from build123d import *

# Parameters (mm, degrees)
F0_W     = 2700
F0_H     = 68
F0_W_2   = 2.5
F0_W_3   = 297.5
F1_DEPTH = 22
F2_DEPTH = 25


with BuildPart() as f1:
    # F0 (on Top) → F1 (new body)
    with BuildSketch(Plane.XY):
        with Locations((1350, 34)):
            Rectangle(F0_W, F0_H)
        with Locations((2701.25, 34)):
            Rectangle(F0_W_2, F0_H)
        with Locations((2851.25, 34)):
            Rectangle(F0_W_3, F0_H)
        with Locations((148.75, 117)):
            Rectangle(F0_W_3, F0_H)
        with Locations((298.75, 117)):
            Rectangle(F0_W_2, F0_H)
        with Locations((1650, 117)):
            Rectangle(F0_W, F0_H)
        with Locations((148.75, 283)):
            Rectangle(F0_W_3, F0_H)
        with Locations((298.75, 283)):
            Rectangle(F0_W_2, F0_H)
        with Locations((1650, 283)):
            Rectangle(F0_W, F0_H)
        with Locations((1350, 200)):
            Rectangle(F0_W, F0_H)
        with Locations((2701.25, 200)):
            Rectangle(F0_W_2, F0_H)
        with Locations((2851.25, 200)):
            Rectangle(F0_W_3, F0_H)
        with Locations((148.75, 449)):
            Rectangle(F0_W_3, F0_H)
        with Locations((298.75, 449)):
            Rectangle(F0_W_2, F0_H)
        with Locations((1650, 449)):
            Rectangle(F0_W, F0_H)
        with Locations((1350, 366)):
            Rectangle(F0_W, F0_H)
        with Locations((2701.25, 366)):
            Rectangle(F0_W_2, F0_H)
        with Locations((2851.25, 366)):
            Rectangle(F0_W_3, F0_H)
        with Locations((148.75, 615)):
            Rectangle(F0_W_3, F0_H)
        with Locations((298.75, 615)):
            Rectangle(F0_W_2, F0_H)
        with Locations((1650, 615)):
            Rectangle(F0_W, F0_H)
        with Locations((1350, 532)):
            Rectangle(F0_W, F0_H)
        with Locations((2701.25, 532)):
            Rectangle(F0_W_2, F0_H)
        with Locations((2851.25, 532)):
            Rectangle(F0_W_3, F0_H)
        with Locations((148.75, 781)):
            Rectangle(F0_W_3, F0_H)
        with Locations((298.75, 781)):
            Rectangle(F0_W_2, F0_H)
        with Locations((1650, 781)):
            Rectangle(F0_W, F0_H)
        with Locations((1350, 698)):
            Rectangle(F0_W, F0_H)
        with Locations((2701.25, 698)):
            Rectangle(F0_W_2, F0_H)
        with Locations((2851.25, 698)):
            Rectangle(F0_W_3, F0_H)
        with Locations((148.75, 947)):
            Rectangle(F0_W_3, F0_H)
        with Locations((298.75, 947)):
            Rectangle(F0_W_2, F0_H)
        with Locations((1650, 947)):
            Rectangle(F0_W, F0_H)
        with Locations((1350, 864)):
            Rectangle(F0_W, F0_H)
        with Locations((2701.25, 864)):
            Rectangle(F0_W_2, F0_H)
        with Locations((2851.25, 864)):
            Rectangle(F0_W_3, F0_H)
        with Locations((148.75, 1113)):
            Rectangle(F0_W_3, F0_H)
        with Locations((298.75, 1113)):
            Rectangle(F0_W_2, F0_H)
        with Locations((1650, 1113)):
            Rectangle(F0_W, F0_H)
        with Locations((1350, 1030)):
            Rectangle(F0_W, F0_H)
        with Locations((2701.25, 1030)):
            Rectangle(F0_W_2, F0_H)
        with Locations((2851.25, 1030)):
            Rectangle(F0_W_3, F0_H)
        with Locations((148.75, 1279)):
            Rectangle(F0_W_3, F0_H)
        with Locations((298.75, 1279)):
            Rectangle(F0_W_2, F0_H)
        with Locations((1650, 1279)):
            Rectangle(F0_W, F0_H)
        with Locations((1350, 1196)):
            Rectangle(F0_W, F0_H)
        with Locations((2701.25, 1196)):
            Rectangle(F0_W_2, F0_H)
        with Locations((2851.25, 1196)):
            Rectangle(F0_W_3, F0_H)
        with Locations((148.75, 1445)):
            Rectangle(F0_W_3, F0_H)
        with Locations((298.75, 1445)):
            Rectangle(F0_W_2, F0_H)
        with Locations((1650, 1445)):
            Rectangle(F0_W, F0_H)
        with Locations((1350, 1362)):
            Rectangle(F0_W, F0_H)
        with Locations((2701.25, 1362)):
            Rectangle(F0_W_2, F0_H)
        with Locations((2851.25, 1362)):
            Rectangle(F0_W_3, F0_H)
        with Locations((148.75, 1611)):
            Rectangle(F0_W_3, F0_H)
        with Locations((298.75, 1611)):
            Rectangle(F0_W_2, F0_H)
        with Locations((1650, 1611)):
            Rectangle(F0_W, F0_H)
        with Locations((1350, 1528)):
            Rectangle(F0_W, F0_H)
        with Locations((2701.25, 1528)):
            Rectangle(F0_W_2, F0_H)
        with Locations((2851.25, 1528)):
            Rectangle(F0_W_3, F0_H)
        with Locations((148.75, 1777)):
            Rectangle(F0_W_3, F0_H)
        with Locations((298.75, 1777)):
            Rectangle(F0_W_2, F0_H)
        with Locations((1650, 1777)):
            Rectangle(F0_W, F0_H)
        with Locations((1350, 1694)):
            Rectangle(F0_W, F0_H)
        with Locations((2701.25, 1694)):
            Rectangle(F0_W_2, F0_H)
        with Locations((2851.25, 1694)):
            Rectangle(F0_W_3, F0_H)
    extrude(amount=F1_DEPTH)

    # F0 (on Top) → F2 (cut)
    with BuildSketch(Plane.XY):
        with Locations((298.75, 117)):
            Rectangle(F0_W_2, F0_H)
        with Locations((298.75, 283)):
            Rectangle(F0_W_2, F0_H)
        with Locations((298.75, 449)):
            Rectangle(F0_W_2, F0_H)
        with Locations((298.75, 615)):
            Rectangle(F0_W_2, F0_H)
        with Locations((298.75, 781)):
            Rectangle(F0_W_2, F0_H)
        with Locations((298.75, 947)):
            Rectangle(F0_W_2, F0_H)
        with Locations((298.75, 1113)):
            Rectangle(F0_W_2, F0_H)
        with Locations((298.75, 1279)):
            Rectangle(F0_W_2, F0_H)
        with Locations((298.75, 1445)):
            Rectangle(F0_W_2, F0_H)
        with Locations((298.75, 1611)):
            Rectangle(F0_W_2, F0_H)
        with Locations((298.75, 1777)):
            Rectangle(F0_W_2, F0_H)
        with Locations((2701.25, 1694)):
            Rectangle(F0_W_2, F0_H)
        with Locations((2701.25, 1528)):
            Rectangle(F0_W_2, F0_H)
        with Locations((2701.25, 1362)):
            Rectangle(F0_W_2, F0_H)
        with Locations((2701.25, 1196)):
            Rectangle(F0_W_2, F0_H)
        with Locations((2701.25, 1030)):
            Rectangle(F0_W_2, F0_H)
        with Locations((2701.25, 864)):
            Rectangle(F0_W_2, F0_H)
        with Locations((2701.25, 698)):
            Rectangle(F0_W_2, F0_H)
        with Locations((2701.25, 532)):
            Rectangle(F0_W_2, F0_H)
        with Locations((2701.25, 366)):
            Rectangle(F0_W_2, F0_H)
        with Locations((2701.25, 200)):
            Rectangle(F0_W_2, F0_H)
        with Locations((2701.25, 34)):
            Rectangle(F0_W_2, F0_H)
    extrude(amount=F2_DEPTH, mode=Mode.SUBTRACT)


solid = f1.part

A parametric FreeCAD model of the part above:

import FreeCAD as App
import Part
import Sketcher


def add_polygon(sketch, points):
    """Adds a closed chain of lines whose ends are joined by coincident constraints."""
    first, n = sketch.GeometryCount, len(points)
    for a, b in zip(points, points[1:] + points[:1]):
        sketch.addGeometry(Part.LineSegment(App.Vector(*a, 0), App.Vector(*b, 0)), False)
    for i in range(n):
        sketch.addConstraint(Sketcher.Constraint("Coincident", first + i, 2, first + (i + 1) % n, 1))

doc = App.newDocument("Part")
body = doc.addObject("PartDesign::Body", "Body")
body.AllowCompound = True

# Sketch on XY plane
sketch1 = doc.addObject("Sketcher::SketchObject", "Sketch")
body.addObject(sketch1)
sketch1.AttachmentSupport = (doc.XY_Plane, [""])
sketch1.MapMode = "FlatFace"
add_polygon(sketch1, [(0, 68), (0, 0), (3000, 0), (3000, 68)])  # lines 0-3
add_polygon(sketch1, [(0, 151), (0, 83), (3000, 83), (3000, 151)])  # lines 4-7
add_polygon(sketch1, [(0, 317), (0, 249), (3000, 249), (3000, 317)])  # lines 8-11
add_polygon(sketch1, [(0, 234), (0, 166), (3000, 166), (3000, 234)])  # lines 12-15
add_polygon(sketch1, [(0, 483), (0, 415), (3000, 415), (3000, 483)])  # lines 16-19
add_polygon(sketch1, [(0, 400), (0, 332), (3000, 332), (3000, 400)])  # lines 20-23
add_polygon(sketch1, [(0, 649), (0, 581), (3000, 581), (3000, 649)])  # lines 24-27
add_polygon(sketch1, [(0, 566), (0, 498), (3000, 498), (3000, 566)])  # lines 28-31
add_polygon(sketch1, [(0, 815), (0, 747), (3000, 747), (3000, 815)])  # lines 32-35
add_polygon(sketch1, [(0, 732), (0, 664), (3000, 664), (3000, 732)])  # lines 36-39
add_polygon(sketch1, [(0, 981), (0, 913), (3000, 913), (3000, 981)])  # lines 40-43
add_polygon(sketch1, [(0, 898), (0, 830), (3000, 830), (3000, 898)])  # lines 44-47
add_polygon(sketch1, [(0, 1147), (0, 1079), (3000, 1079), (3000, 1147)])  # lines 48-51
add_polygon(sketch1, [(0, 1064), (0, 996), (3000, 996), (3000, 1064)])  # lines 52-55
add_polygon(sketch1, [(0, 1313), (0, 1245), (3000, 1245), (3000, 1313)])  # lines 56-59
add_polygon(sketch1, [(0, 1230), (0, 1162), (3000, 1162), (3000, 1230)])  # lines 60-63
add_polygon(sketch1, [(0, 1479), (0, 1411), (3000, 1411), (3000, 1479)])  # lines 64-67
add_polygon(sketch1, [(0, 1396), (0, 1328), (3000, 1328), (3000, 1396)])  # lines 68-71
add_polygon(sketch1, [(0, 1645), (0, 1577), (3000, 1577), (3000, 1645)])  # lines 72-75
add_polygon(sketch1, [(0, 1562), (0, 1494), (3000, 1494), (3000, 1562)])  # lines 76-79
add_polygon(sketch1, [(0, 1811), (0, 1743), (3000, 1743), (3000, 1811)])  # lines 80-83
add_polygon(sketch1, [(0, 1728), (0, 1660), (3000, 1660), (3000, 1728)])  # lines 84-87
sketch1.addConstraint(Sketcher.Constraint("Vertical", 0))
sketch1.addConstraint(Sketcher.Constraint("Horizontal", 1))
sketch1.addConstraint(Sketcher.Constraint("Vertical", 2))
sketch1.addConstraint(Sketcher.Constraint("Horizontal", 3))
sketch1.addConstraint(Sketcher.Constraint("Vertical", 4))
sketch1.addConstraint(Sketcher.Constraint("Horizontal", 5))
sketch1.addConstraint(Sketcher.Constraint("Vertical", 6))
sketch1.addConstraint(Sketcher.Constraint("Horizontal", 7))
sketch1.addConstraint(Sketcher.Constraint("Vertical", 8))
sketch1.addConstraint(Sketcher.Constraint("Horizontal", 9))
sketch1.addConstraint(Sketcher.Constraint("Vertical", 10))
sketch1.addConstraint(Sketcher.Constraint("Horizontal", 11))
sketch1.addConstraint(Sketcher.Constraint("Vertical", 12))
sketch1.addConstraint(Sketcher.Constraint("Horizontal", 13))
sketch1.addConstraint(Sketcher.Constraint("Vertical", 14))
sketch1.addConstraint(Sketcher.Constraint("Horizontal", 15))
sketch1.addConstraint(Sketcher.Constraint("Vertical", 16))
sketch1.addConstraint(Sketcher.Constraint("Horizontal", 17))
sketch1.addConstraint(Sketcher.Constraint("Vertical", 18))
sketch1.addConstraint(Sketcher.Constraint("Horizontal", 19))
sketch1.addConstraint(Sketcher.Constraint("Vertical", 20))
sketch1.addConstraint(Sketcher.Constraint("Horizontal", 21))
sketch1.addConstraint(Sketcher.Constraint("Vertical", 22))
sketch1.addConstraint(Sketcher.Constraint("Horizontal", 23))
sketch1.addConstraint(Sketcher.Constraint("Vertical", 24))
sketch1.addConstraint(Sketcher.Constraint("Horizontal", 25))
sketch1.addConstraint(Sketcher.Constraint("Vertical", 26))
sketch1.addConstraint(Sketcher.Constraint("Horizontal", 27))
sketch1.addConstraint(Sketcher.Constraint("Vertical", 28))
sketch1.addConstraint(Sketcher.Constraint("Horizontal", 29))
sketch1.addConstraint(Sketcher.Constraint("Vertical", 30))
sketch1.addConstraint(Sketcher.Constraint("Horizontal", 31))
sketch1.addConstraint(Sketcher.Constraint("Vertical", 32))
sketch1.addConstraint(Sketcher.Constraint("Horizontal", 33))
sketch1.addConstraint(Sketcher.Constraint("Vertical", 34))
sketch1.addConstraint(Sketcher.Constraint("Horizontal", 35))
sketch1.addConstraint(Sketcher.Constraint("Vertical", 36))
sketch1.addConstraint(Sketcher.Constraint("Horizontal", 37))
sketch1.addConstraint(Sketcher.Constraint("Vertical", 38))
sketch1.addConstraint(Sketcher.Constraint("Horizontal", 39))
sketch1.addConstraint(Sketcher.Constraint("Vertical", 40))
sketch1.addConstraint(Sketcher.Constraint("Horizontal", 41))
sketch1.addConstraint(Sketcher.Constraint("Vertical", 42))
sketch1.addConstraint(Sketcher.Constraint("Horizontal", 43))
sketch1.addConstraint(Sketcher.Constraint("Vertical", 44))
sketch1.addConstraint(Sketcher.Constraint("Horizontal", 45))
sketch1.addConstraint(Sketcher.Constraint("Vertical", 46))
sketch1.addConstraint(Sketcher.Constraint("Horizontal", 47))
sketch1.addConstraint(Sketcher.Constraint("Vertical", 48))
sketch1.addConstraint(Sketcher.Constraint("Horizontal", 49))
sketch1.addConstraint(Sketcher.Constraint("Vertical", 50))
sketch1.addConstraint(Sketcher.Constraint("Horizontal", 51))
sketch1.addConstraint(Sketcher.Constraint("Vertical", 52))
sketch1.addConstraint(Sketcher.Constraint("Horizontal", 53))
sketch1.addConstraint(Sketcher.Constraint("Vertical", 54))
sketch1.addConstraint(Sketcher.Constraint("Horizontal", 55))
sketch1.addConstraint(Sketcher.Constraint("Vertical", 56))
sketch1.addConstraint(Sketcher.Constraint("Horizontal", 57))
sketch1.addConstraint(Sketcher.Constraint("Vertical", 58))
sketch1.addConstraint(Sketcher.Constraint("Horizontal", 59))
sketch1.addConstraint(Sketcher.Constraint("Vertical", 60))
sketch1.addConstraint(Sketcher.Constraint("Horizontal", 61))
sketch1.addConstraint(Sketcher.Constraint("Vertical", 62))
sketch1.addConstraint(Sketcher.Constraint("Horizontal", 63))
sketch1.addConstraint(Sketcher.Constraint("Vertical", 64))
sketch1.addConstraint(Sketcher.Constraint("Horizontal", 65))
sketch1.addConstraint(Sketcher.Constraint("Vertical", 66))
sketch1.addConstraint(Sketcher.Constraint("Horizontal", 67))
sketch1.addConstraint(Sketcher.Constraint("Vertical", 68))
sketch1.addConstraint(Sketcher.Constraint("Horizontal", 69))
sketch1.addConstraint(Sketcher.Constraint("Vertical", 70))
sketch1.addConstraint(Sketcher.Constraint("Horizontal", 71))
sketch1.addConstraint(Sketcher.Constraint("Vertical", 72))
sketch1.addConstraint(Sketcher.Constraint("Horizontal", 73))
sketch1.addConstraint(Sketcher.Constraint("Vertical", 74))
sketch1.addConstraint(Sketcher.Constraint("Horizontal", 75))
sketch1.addConstraint(Sketcher.Constraint("Vertical", 76))
sketch1.addConstraint(Sketcher.Constraint("Horizontal", 77))
sketch1.addConstraint(Sketcher.Constraint("Vertical", 78))
sketch1.addConstraint(Sketcher.Constraint("Horizontal", 79))
sketch1.addConstraint(Sketcher.Constraint("Vertical", 80))
sketch1.addConstraint(Sketcher.Constraint("Horizontal", 81))
sketch1.addConstraint(Sketcher.Constraint("Vertical", 82))
sketch1.addConstraint(Sketcher.Constraint("Horizontal", 83))
sketch1.addConstraint(Sketcher.Constraint("Vertical", 84))
sketch1.addConstraint(Sketcher.Constraint("Horizontal", 85))
sketch1.addConstraint(Sketcher.Constraint("Vertical", 86))
sketch1.addConstraint(Sketcher.Constraint("Horizontal", 87))
sketch1.addConstraint(Sketcher.Constraint("Coincident", 0, 2, -1, 1))
sketch1.addConstraint(Sketcher.Constraint("PointOnObject", 4, 2, -2))
sketch1.addConstraint(Sketcher.Constraint("PointOnObject", 8, 2, -2))
sketch1.addConstraint(Sketcher.Constraint("PointOnObject", 12, 2, -2))
sketch1.addConstraint(Sketcher.Constraint("PointOnObject", 16, 2, -2))
sketch1.addConstraint(Sketcher.Constraint("PointOnObject", 20, 2, -2))
sketch1.addConstraint(Sketcher.Constraint("PointOnObject", 24, 2, -2))
sketch1.addConstraint(Sketcher.Constraint("PointOnObject", 28, 2, -2))
sketch1.addConstraint(Sketcher.Constraint("PointOnObject", 32, 2, -2))
sketch1.addConstraint(Sketcher.Constraint("PointOnObject", 36, 2, -2))
sketch1.addConstraint(Sketcher.Constraint("PointOnObject", 40, 2, -2))
sketch1.addConstraint(Sketcher.Constraint("PointOnObject", 44, 2, -2))
sketch1.addConstraint(Sketcher.Constraint("PointOnObject", 48, 2, -2))
sketch1.addConstraint(Sketcher.Constraint("PointOnObject", 52, 2, -2))
sketch1.addConstraint(Sketcher.Constraint("PointOnObject", 56, 2, -2))
sketch1.addConstraint(Sketcher.Constraint("PointOnObject", 60, 2, -2))
sketch1.addConstraint(Sketcher.Constraint("PointOnObject", 64, 2, -2))
sketch1.addConstraint(Sketcher.Constraint("PointOnObject", 68, 2, -2))
sketch1.addConstraint(Sketcher.Constraint("PointOnObject", 72, 2, -2))
sketch1.addConstraint(Sketcher.Constraint("PointOnObject", 76, 2, -2))
sketch1.addConstraint(Sketcher.Constraint("PointOnObject", 80, 2, -2))
sketch1.addConstraint(Sketcher.Constraint("PointOnObject", 84, 2, -2))
sketch1.addConstraint(Sketcher.Constraint("Vertical", 2, 2, 5, 2))
sketch1.addConstraint(Sketcher.Constraint("Vertical", 6, 2, 9, 2))
sketch1.addConstraint(Sketcher.Constraint("Vertical", 10, 2, 13, 2))
sketch1.addConstraint(Sketcher.Constraint("Vertical", 14, 2, 17, 2))
sketch1.addConstraint(Sketcher.Constraint("Vertical", 18, 2, 21, 2))
sketch1.addConstraint(Sketcher.Constraint("Vertical", 22, 2, 25, 2))
sketch1.addConstraint(Sketcher.Constraint("Vertical", 26, 2, 29, 2))
sketch1.addConstraint(Sketcher.Constraint("Vertical", 30, 2, 33, 2))
sketch1.addConstraint(Sketcher.Constraint("Vertical", 34, 2, 37, 2))
sketch1.addConstraint(Sketcher.Constraint("Vertical", 38, 2, 41, 2))
sketch1.addConstraint(Sketcher.Constraint("Vertical", 42, 2, 45, 2))
sketch1.addConstraint(Sketcher.Constraint("Vertical", 46, 2, 49, 2))
sketch1.addConstraint(Sketcher.Constraint("Vertical", 50, 2, 53, 2))
sketch1.addConstraint(Sketcher.Constraint("Vertical", 54, 2, 57, 2))
sketch1.addConstraint(Sketcher.Constraint("Vertical", 58, 2, 61, 2))
sketch1.addConstraint(Sketcher.Constraint("Vertical", 62, 2, 65, 2))
sketch1.addConstraint(Sketcher.Constraint("Vertical", 66, 2, 69, 2))
sketch1.addConstraint(Sketcher.Constraint("Vertical", 70, 2, 73, 2))
sketch1.addConstraint(Sketcher.Constraint("Vertical", 74, 2, 77, 2))
sketch1.addConstraint(Sketcher.Constraint("Vertical", 78, 2, 81, 2))
sketch1.addConstraint(Sketcher.Constraint("Vertical", 82, 2, 85, 2))
sketch1.addConstraint(Sketcher.Constraint("Equal", 2, 4))
sketch1.addConstraint(Sketcher.Constraint("Equal", 6, 8))
sketch1.addConstraint(Sketcher.Constraint("Equal", 10, 12))
sketch1.addConstraint(Sketcher.Constraint("Equal", 14, 16))
sketch1.addConstraint(Sketcher.Constraint("Equal", 18, 20))
sketch1.addConstraint(Sketcher.Constraint("Equal", 22, 24))
sketch1.addConstraint(Sketcher.Constraint("Equal", 26, 28))
sketch1.addConstraint(Sketcher.Constraint("Equal", 30, 32))
sketch1.addConstraint(Sketcher.Constraint("Equal", 34, 36))
sketch1.addConstraint(Sketcher.Constraint("Equal", 38, 40))
sketch1.addConstraint(Sketcher.Constraint("Equal", 42, 44))
sketch1.addConstraint(Sketcher.Constraint("Equal", 46, 48))
sketch1.addConstraint(Sketcher.Constraint("Equal", 50, 52))
sketch1.addConstraint(Sketcher.Constraint("Equal", 54, 56))
sketch1.addConstraint(Sketcher.Constraint("Equal", 58, 60))
sketch1.addConstraint(Sketcher.Constraint("Equal", 62, 64))
sketch1.addConstraint(Sketcher.Constraint("Equal", 66, 68))
sketch1.addConstraint(Sketcher.Constraint("Equal", 70, 72))
sketch1.addConstraint(Sketcher.Constraint("Equal", 74, 76))
sketch1.addConstraint(Sketcher.Constraint("Equal", 78, 80))
sketch1.addConstraint(Sketcher.Constraint("Equal", 82, 84))
sketch1.addConstraint(Sketcher.Constraint("DistanceX", 1, 1, 1, 2, 3000.0))
sketch1.addConstraint(Sketcher.Constraint("DistanceY", 0, 2, 0, 1, 68.0))
sketch1.addConstraint(Sketcher.Constraint("DistanceY", -1, 1, 4, 2, 83.0))
sketch1.addConstraint(Sketcher.Constraint("DistanceY", -1, 1, 8, 2, 249.0))
sketch1.addConstraint(Sketcher.Constraint("DistanceY", -1, 1, 12, 2, 166.0))
sketch1.addConstraint(Sketcher.Constraint("DistanceY", -1, 1, 16, 2, 415.0))
sketch1.addConstraint(Sketcher.Constraint("DistanceY", -1, 1, 20, 2, 332.0))
sketch1.addConstraint(Sketcher.Constraint("DistanceY", -1, 1, 24, 2, 581.0))
sketch1.addConstraint(Sketcher.Constraint("DistanceY", -1, 1, 28, 2, 498.0))
sketch1.addConstraint(Sketcher.Constraint("DistanceY", -1, 1, 32, 2, 747.0))
sketch1.addConstraint(Sketcher.Constraint("DistanceY", -1, 1, 36, 2, 664.0))
sketch1.addConstraint(Sketcher.Constraint("DistanceY", -1, 1, 40, 2, 913.0))
sketch1.addConstraint(Sketcher.Constraint("DistanceY", -1, 1, 44, 2, 830.0))
sketch1.addConstraint(Sketcher.Constraint("DistanceY", -1, 1, 48, 2, 1079.0))
sketch1.addConstraint(Sketcher.Constraint("DistanceY", -1, 1, 52, 2, 996.0))
sketch1.addConstraint(Sketcher.Constraint("DistanceY", -1, 1, 56, 2, 1245.0))
sketch1.addConstraint(Sketcher.Constraint("DistanceY", -1, 1, 60, 2, 1162.0))
sketch1.addConstraint(Sketcher.Constraint("DistanceY", -1, 1, 64, 2, 1411.0))
sketch1.addConstraint(Sketcher.Constraint("DistanceY", -1, 1, 68, 2, 1328.0))
sketch1.addConstraint(Sketcher.Constraint("DistanceY", -1, 1, 72, 2, 1577.0))
sketch1.addConstraint(Sketcher.Constraint("DistanceY", -1, 1, 76, 2, 1494.0))
sketch1.addConstraint(Sketcher.Constraint("DistanceY", -1, 1, 80, 2, 1743.0))
sketch1.addConstraint(Sketcher.Constraint("DistanceY", -1, 1, 84, 2, 1660.0))
pad1 = doc.addObject("PartDesign::Pad", "Pad")
body.addObject(pad1)
pad1.Profile = sketch1
pad1.Length = 22

# Sketch on XY plane
sketch2 = doc.addObject("Sketcher::SketchObject", "Sketch001")
body.addObject(sketch2)
sketch2.AttachmentSupport = (doc.XY_Plane, [""])
sketch2.MapMode = "FlatFace"
add_polygon(sketch2, [(297.5, 151), (297.5, 83), (300, 83), (300, 151)])  # lines 0-3
add_polygon(sketch2, [(297.5, 317), (297.5, 249), (300, 249), (300, 317)])  # lines 4-7
add_polygon(sketch2, [(297.5, 483), (297.5, 415), (300, 415), (300, 483)])  # lines 8-11
add_polygon(sketch2, [(297.5, 649), (297.5, 581), (300, 581), (300, 649)])  # lines 12-15
add_polygon(sketch2, [(297.5, 815), (297.5, 747), (300, 747), (300, 815)])  # lines 16-19
add_polygon(sketch2, [(297.5, 981), (297.5, 913), (300, 913), (300, 981)])  # lines 20-23
add_polygon(sketch2, [(297.5, 1147), (297.5, 1079), (300, 1079), (300, 1147)])  # lines 24-27
add_polygon(sketch2, [(297.5, 1313), (297.5, 1245), (300, 1245), (300, 1313)])  # lines 28-31
add_polygon(sketch2, [(297.5, 1479), (297.5, 1411), (300, 1411), (300, 1479)])  # lines 32-35
add_polygon(sketch2, [(297.5, 1645), (297.5, 1577), (300, 1577), (300, 1645)])  # lines 36-39
add_polygon(sketch2, [(297.5, 1811), (297.5, 1743), (300, 1743), (300, 1811)])  # lines 40-43
add_polygon(sketch2, [(2700, 1728), (2700, 1660), (2702.5, 1660), (2702.5, 1728)])  # lines 44-47
add_polygon(sketch2, [(2700, 1562), (2700, 1494), (2702.5, 1494), (2702.5, 1562)])  # lines 48-51
add_polygon(sketch2, [(2700, 1396), (2700, 1328), (2702.5, 1328), (2702.5, 1396)])  # lines 52-55
add_polygon(sketch2, [(2700, 1230), (2700, 1162), (2702.5, 1162), (2702.5, 1230)])  # lines 56-59
add_polygon(sketch2, [(2700, 1064), (2700, 996), (2702.5, 996), (2702.5, 1064)])  # lines 60-63
add_polygon(sketch2, [(2700, 898), (2700, 830), (2702.5, 830), (2702.5, 898)])  # lines 64-67
add_polygon(sketch2, [(2700, 732), (2700, 664), (2702.5, 664), (2702.5, 732)])  # lines 68-71
add_polygon(sketch2, [(2700, 566), (2700, 498), (2702.5, 498), (2702.5, 566)])  # lines 72-75
add_polygon(sketch2, [(2700, 400), (2700, 332), (2702.5, 332), (2702.5, 400)])  # lines 76-79
add_polygon(sketch2, [(2700, 234), (2700, 166), (2702.5, 166), (2702.5, 234)])  # lines 80-83
add_polygon(sketch2, [(2700, 68), (2700, 0), (2702.5, 0), (2702.5, 68)])  # lines 84-87
sketch2.addConstraint(Sketcher.Constraint("Vertical", 0))
sketch2.addConstraint(Sketcher.Constraint("Horizontal", 1))
sketch2.addConstraint(Sketcher.Constraint("Vertical", 2))
sketch2.addConstraint(Sketcher.Constraint("Horizontal", 3))
sketch2.addConstraint(Sketcher.Constraint("Vertical", 4))
sketch2.addConstraint(Sketcher.Constraint("Horizontal", 5))
sketch2.addConstraint(Sketcher.Constraint("Vertical", 6))
sketch2.addConstraint(Sketcher.Constraint("Horizontal", 7))
sketch2.addConstraint(Sketcher.Constraint("Vertical", 8))
sketch2.addConstraint(Sketcher.Constraint("Horizontal", 9))
sketch2.addConstraint(Sketcher.Constraint("Vertical", 10))
sketch2.addConstraint(Sketcher.Constraint("Horizontal", 11))
sketch2.addConstraint(Sketcher.Constraint("Vertical", 12))
sketch2.addConstraint(Sketcher.Constraint("Horizontal", 13))
sketch2.addConstraint(Sketcher.Constraint("Vertical", 14))
sketch2.addConstraint(Sketcher.Constraint("Horizontal", 15))
sketch2.addConstraint(Sketcher.Constraint("Vertical", 16))
sketch2.addConstraint(Sketcher.Constraint("Horizontal", 17))
sketch2.addConstraint(Sketcher.Constraint("Vertical", 18))
sketch2.addConstraint(Sketcher.Constraint("Horizontal", 19))
sketch2.addConstraint(Sketcher.Constraint("Vertical", 20))
sketch2.addConstraint(Sketcher.Constraint("Horizontal", 21))
sketch2.addConstraint(Sketcher.Constraint("Vertical", 22))
sketch2.addConstraint(Sketcher.Constraint("Horizontal", 23))
sketch2.addConstraint(Sketcher.Constraint("Vertical", 24))
sketch2.addConstraint(Sketcher.Constraint("Horizontal", 25))
sketch2.addConstraint(Sketcher.Constraint("Vertical", 26))
sketch2.addConstraint(Sketcher.Constraint("Horizontal", 27))
sketch2.addConstraint(Sketcher.Constraint("Vertical", 28))
sketch2.addConstraint(Sketcher.Constraint("Horizontal", 29))
sketch2.addConstraint(Sketcher.Constraint("Vertical", 30))
sketch2.addConstraint(Sketcher.Constraint("Horizontal", 31))
sketch2.addConstraint(Sketcher.Constraint("Vertical", 32))
sketch2.addConstraint(Sketcher.Constraint("Horizontal", 33))
sketch2.addConstraint(Sketcher.Constraint("Vertical", 34))
sketch2.addConstraint(Sketcher.Constraint("Horizontal", 35))
sketch2.addConstraint(Sketcher.Constraint("Vertical", 36))
sketch2.addConstraint(Sketcher.Constraint("Horizontal", 37))
sketch2.addConstraint(Sketcher.Constraint("Vertical", 38))
sketch2.addConstraint(Sketcher.Constraint("Horizontal", 39))
sketch2.addConstraint(Sketcher.Constraint("Vertical", 40))
sketch2.addConstraint(Sketcher.Constraint("Horizontal", 41))
sketch2.addConstraint(Sketcher.Constraint("Vertical", 42))
sketch2.addConstraint(Sketcher.Constraint("Horizontal", 43))
sketch2.addConstraint(Sketcher.Constraint("Vertical", 44))
sketch2.addConstraint(Sketcher.Constraint("Horizontal", 45))
sketch2.addConstraint(Sketcher.Constraint("Vertical", 46))
sketch2.addConstraint(Sketcher.Constraint("Horizontal", 47))
sketch2.addConstraint(Sketcher.Constraint("Vertical", 48))
sketch2.addConstraint(Sketcher.Constraint("Horizontal", 49))
sketch2.addConstraint(Sketcher.Constraint("Vertical", 50))
sketch2.addConstraint(Sketcher.Constraint("Horizontal", 51))
sketch2.addConstraint(Sketcher.Constraint("Vertical", 52))
sketch2.addConstraint(Sketcher.Constraint("Horizontal", 53))
sketch2.addConstraint(Sketcher.Constraint("Vertical", 54))
sketch2.addConstraint(Sketcher.Constraint("Horizontal", 55))
sketch2.addConstraint(Sketcher.Constraint("Vertical", 56))
sketch2.addConstraint(Sketcher.Constraint("Horizontal", 57))
sketch2.addConstraint(Sketcher.Constraint("Vertical", 58))
sketch2.addConstraint(Sketcher.Constraint("Horizontal", 59))
sketch2.addConstraint(Sketcher.Constraint("Vertical", 60))
sketch2.addConstraint(Sketcher.Constraint("Horizontal", 61))
sketch2.addConstraint(Sketcher.Constraint("Vertical", 62))
sketch2.addConstraint(Sketcher.Constraint("Horizontal", 63))
sketch2.addConstraint(Sketcher.Constraint("Vertical", 64))
sketch2.addConstraint(Sketcher.Constraint("Horizontal", 65))
sketch2.addConstraint(Sketcher.Constraint("Vertical", 66))
sketch2.addConstraint(Sketcher.Constraint("Horizontal", 67))
sketch2.addConstraint(Sketcher.Constraint("Vertical", 68))
sketch2.addConstraint(Sketcher.Constraint("Horizontal", 69))
sketch2.addConstraint(Sketcher.Constraint("Vertical", 70))
sketch2.addConstraint(Sketcher.Constraint("Horizontal", 71))
sketch2.addConstraint(Sketcher.Constraint("Vertical", 72))
sketch2.addConstraint(Sketcher.Constraint("Horizontal", 73))
sketch2.addConstraint(Sketcher.Constraint("Vertical", 74))
sketch2.addConstraint(Sketcher.Constraint("Horizontal", 75))
sketch2.addConstraint(Sketcher.Constraint("Vertical", 76))
sketch2.addConstraint(Sketcher.Constraint("Horizontal", 77))
sketch2.addConstraint(Sketcher.Constraint("Vertical", 78))
sketch2.addConstraint(Sketcher.Constraint("Horizontal", 79))
sketch2.addConstraint(Sketcher.Constraint("Vertical", 80))
sketch2.addConstraint(Sketcher.Constraint("Horizontal", 81))
sketch2.addConstraint(Sketcher.Constraint("Vertical", 82))
sketch2.addConstraint(Sketcher.Constraint("Horizontal", 83))
sketch2.addConstraint(Sketcher.Constraint("Vertical", 84))
sketch2.addConstraint(Sketcher.Constraint("Horizontal", 85))
sketch2.addConstraint(Sketcher.Constraint("Vertical", 86))
sketch2.addConstraint(Sketcher.Constraint("Horizontal", 87))
sketch2.addConstraint(Sketcher.Constraint("PointOnObject", 84, 2, -1))
sketch2.addConstraint(Sketcher.Constraint("Vertical", 3, 2, 4, 2))
sketch2.addConstraint(Sketcher.Constraint("Vertical", 2, 2, 5, 2))
sketch2.addConstraint(Sketcher.Constraint("Vertical", 7, 2, 8, 2))
sketch2.addConstraint(Sketcher.Constraint("Vertical", 6, 2, 9, 2))
sketch2.addConstraint(Sketcher.Constraint("Vertical", 11, 2, 12, 2))
sketch2.addConstraint(Sketcher.Constraint("Vertical", 10, 2, 13, 2))
sketch2.addConstraint(Sketcher.Constraint("Vertical", 15, 2, 16, 2))
sketch2.addConstraint(Sketcher.Constraint("Vertical", 14, 2, 17, 2))
sketch2.addConstraint(Sketcher.Constraint("Vertical", 19, 2, 20, 2))
sketch2.addConstraint(Sketcher.Constraint("Vertical", 18, 2, 21, 2))
sketch2.addConstraint(Sketcher.Constraint("Vertical", 23, 2, 24, 2))
sketch2.addConstraint(Sketcher.Constraint("Vertical", 22, 2, 25, 2))
sketch2.addConstraint(Sketcher.Constraint("Vertical", 27, 2, 28, 2))
sketch2.addConstraint(Sketcher.Constraint("Vertical", 26, 2, 29, 2))
sketch2.addConstraint(Sketcher.Constraint("Vertical", 31, 2, 32, 2))
sketch2.addConstraint(Sketcher.Constraint("Vertical", 30, 2, 33, 2))
sketch2.addConstraint(Sketcher.Constraint("Vertical", 35, 2, 36, 2))
sketch2.addConstraint(Sketcher.Constraint("Vertical", 34, 2, 37, 2))
sketch2.addConstraint(Sketcher.Constraint("Vertical", 39, 2, 40, 2))
sketch2.addConstraint(Sketcher.Constraint("Vertical", 38, 2, 41, 2))
sketch2.addConstraint(Sketcher.Constraint("Vertical", 47, 2, 48, 2))
sketch2.addConstraint(Sketcher.Constraint("Vertical", 46, 2, 49, 2))
sketch2.addConstraint(Sketcher.Constraint("Vertical", 51, 2, 52, 2))
sketch2.addConstraint(Sketcher.Constraint("Vertical", 50, 2, 53, 2))
sketch2.addConstraint(Sketcher.Constraint("Vertical", 55, 2, 56, 2))
sketch2.addConstraint(Sketcher.Constraint("Vertical", 54, 2, 57, 2))
sketch2.addConstraint(Sketcher.Constraint("Vertical", 59, 2, 60, 2))
sketch2.addConstraint(Sketcher.Constraint("Vertical", 58, 2, 61, 2))
sketch2.addConstraint(Sketcher.Constraint("Vertical", 63, 2, 64, 2))
sketch2.addConstraint(Sketcher.Constraint("Vertical", 62, 2, 65, 2))
sketch2.addConstraint(Sketcher.Constraint("Vertical", 67, 2, 68, 2))
sketch2.addConstraint(Sketcher.Constraint("Vertical", 66, 2, 69, 2))
sketch2.addConstraint(Sketcher.Constraint("Vertical", 71, 2, 72, 2))
sketch2.addConstraint(Sketcher.Constraint("Vertical", 70, 2, 73, 2))
sketch2.addConstraint(Sketcher.Constraint("Vertical", 75, 2, 76, 2))
sketch2.addConstraint(Sketcher.Constraint("Vertical", 74, 2, 77, 2))
sketch2.addConstraint(Sketcher.Constraint("Vertical", 79, 2, 80, 2))
sketch2.addConstraint(Sketcher.Constraint("Vertical", 78, 2, 81, 2))
sketch2.addConstraint(Sketcher.Constraint("Vertical", 83, 2, 84, 2))
sketch2.addConstraint(Sketcher.Constraint("Vertical", 82, 2, 85, 2))
sketch2.addConstraint(Sketcher.Constraint("Equal", 43, 45))
sketch2.addConstraint(Sketcher.Constraint("Equal", 2, 4))
sketch2.addConstraint(Sketcher.Constraint("Equal", 6, 8))
sketch2.addConstraint(Sketcher.Constraint("Equal", 10, 12))
sketch2.addConstraint(Sketcher.Constraint("Equal", 14, 16))
sketch2.addConstraint(Sketcher.Constraint("Equal", 18, 20))
sketch2.addConstraint(Sketcher.Constraint("Equal", 22, 24))
sketch2.addConstraint(Sketcher.Constraint("Equal", 26, 28))
sketch2.addConstraint(Sketcher.Constraint("Equal", 30, 32))
sketch2.addConstraint(Sketcher.Constraint("Equal", 34, 36))
sketch2.addConstraint(Sketcher.Constraint("Equal", 38, 40))
sketch2.addConstraint(Sketcher.Constraint("Equal", 42, 44))
sketch2.addConstraint(Sketcher.Constraint("Equal", 46, 48))
sketch2.addConstraint(Sketcher.Constraint("Equal", 50, 52))
sketch2.addConstraint(Sketcher.Constraint("Equal", 54, 56))
sketch2.addConstraint(Sketcher.Constraint("Equal", 58, 60))
sketch2.addConstraint(Sketcher.Constraint("Equal", 62, 64))
sketch2.addConstraint(Sketcher.Constraint("Equal", 66, 68))
sketch2.addConstraint(Sketcher.Constraint("Equal", 70, 72))
sketch2.addConstraint(Sketcher.Constraint("Equal", 74, 76))
sketch2.addConstraint(Sketcher.Constraint("Equal", 78, 80))
sketch2.addConstraint(Sketcher.Constraint("Equal", 82, 84))
sketch2.addConstraint(Sketcher.Constraint("DistanceY", 0, 2, 0, 1, 68.0))
sketch2.addConstraint(Sketcher.Constraint("DistanceX", 1, 1, 1, 2, 2.5))
sketch2.addConstraint(Sketcher.Constraint("DistanceY", -1, 1, 0, 2, 83.0))
sketch2.addConstraint(Sketcher.Constraint("DistanceX", -1, 1, 1, 2, 300.0))
sketch2.addConstraint(Sketcher.Constraint("DistanceY", -1, 1, 4, 2, 249.0))
sketch2.addConstraint(Sketcher.Constraint("DistanceY", -1, 1, 8, 2, 415.0))
sketch2.addConstraint(Sketcher.Constraint("DistanceY", -1, 1, 12, 2, 581.0))
sketch2.addConstraint(Sketcher.Constraint("DistanceY", -1, 1, 16, 2, 747.0))
sketch2.addConstraint(Sketcher.Constraint("DistanceY", -1, 1, 20, 2, 913.0))
sketch2.addConstraint(Sketcher.Constraint("DistanceY", -1, 1, 24, 2, 1079.0))
sketch2.addConstraint(Sketcher.Constraint("DistanceY", -1, 1, 28, 2, 1245.0))
sketch2.addConstraint(Sketcher.Constraint("DistanceY", -1, 1, 32, 2, 1411.0))
sketch2.addConstraint(Sketcher.Constraint("DistanceY", -1, 1, 36, 2, 1577.0))
sketch2.addConstraint(Sketcher.Constraint("DistanceY", -1, 1, 40, 2, 1743.0))
sketch2.addConstraint(Sketcher.Constraint("DistanceX", -1, 1, 44, 2, 2700.0))
sketch2.addConstraint(Sketcher.Constraint("DistanceY", -1, 1, 44, 2, 1660.0))
sketch2.addConstraint(Sketcher.Constraint("DistanceY", -1, 1, 48, 2, 1494.0))
sketch2.addConstraint(Sketcher.Constraint("DistanceY", -1, 1, 52, 2, 1328.0))
sketch2.addConstraint(Sketcher.Constraint("DistanceY", -1, 1, 56, 2, 1162.0))
sketch2.addConstraint(Sketcher.Constraint("DistanceY", -1, 1, 60, 2, 996.0))
sketch2.addConstraint(Sketcher.Constraint("DistanceY", -1, 1, 64, 2, 830.0))
sketch2.addConstraint(Sketcher.Constraint("DistanceY", -1, 1, 68, 2, 664.0))
sketch2.addConstraint(Sketcher.Constraint("DistanceY", -1, 1, 72, 2, 498.0))
sketch2.addConstraint(Sketcher.Constraint("DistanceY", -1, 1, 76, 2, 332.0))
sketch2.addConstraint(Sketcher.Constraint("DistanceY", -1, 1, 80, 2, 166.0))
pocket1 = doc.addObject("PartDesign::Pocket", "Pocket")
body.addObject(pocket1)
pocket1.Profile = sketch2
pocket1.Length = 25
pocket1.Reversed = True

doc.recompute()
